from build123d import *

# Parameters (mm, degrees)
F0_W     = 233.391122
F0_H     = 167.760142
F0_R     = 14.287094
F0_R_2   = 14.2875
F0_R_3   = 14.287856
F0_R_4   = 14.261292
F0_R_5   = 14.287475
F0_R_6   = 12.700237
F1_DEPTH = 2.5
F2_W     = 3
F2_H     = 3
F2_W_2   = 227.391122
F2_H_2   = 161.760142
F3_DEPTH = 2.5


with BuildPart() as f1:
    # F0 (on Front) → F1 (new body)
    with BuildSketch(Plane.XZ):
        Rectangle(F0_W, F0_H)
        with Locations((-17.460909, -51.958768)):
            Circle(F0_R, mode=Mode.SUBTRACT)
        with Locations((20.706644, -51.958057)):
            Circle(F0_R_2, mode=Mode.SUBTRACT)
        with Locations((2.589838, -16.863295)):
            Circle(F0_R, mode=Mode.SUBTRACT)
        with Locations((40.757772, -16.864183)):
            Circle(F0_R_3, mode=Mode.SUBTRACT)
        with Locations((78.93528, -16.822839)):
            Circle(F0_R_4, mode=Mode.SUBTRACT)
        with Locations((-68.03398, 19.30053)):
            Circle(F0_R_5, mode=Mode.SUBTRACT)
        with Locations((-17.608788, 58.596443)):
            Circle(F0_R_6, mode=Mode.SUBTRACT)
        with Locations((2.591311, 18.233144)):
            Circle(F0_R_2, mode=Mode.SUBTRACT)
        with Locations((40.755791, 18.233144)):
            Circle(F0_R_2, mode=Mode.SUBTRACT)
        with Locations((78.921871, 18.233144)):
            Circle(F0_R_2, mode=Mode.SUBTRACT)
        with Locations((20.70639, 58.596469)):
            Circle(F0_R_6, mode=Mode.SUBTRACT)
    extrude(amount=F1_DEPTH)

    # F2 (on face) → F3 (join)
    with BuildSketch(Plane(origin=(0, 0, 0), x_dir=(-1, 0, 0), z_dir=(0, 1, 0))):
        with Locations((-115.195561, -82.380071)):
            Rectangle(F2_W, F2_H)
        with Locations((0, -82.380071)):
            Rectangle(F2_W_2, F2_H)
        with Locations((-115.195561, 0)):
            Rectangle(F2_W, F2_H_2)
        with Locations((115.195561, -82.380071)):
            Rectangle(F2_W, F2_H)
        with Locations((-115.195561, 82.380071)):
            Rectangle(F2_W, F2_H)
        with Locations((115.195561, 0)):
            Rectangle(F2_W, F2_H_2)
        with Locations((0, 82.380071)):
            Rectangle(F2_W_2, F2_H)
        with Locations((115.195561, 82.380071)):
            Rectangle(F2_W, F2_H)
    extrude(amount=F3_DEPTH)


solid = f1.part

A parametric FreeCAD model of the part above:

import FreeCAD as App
import Part
import Sketcher

V = App.Vector


def add_polygon(sketch, points):
    """Adds a closed chain of lines whose ends are joined by coincident constraints."""
    first, n = sketch.GeometryCount, len(points)
    for a, b in zip(points, points[1:] + points[:1]):
        sketch.addGeometry(Part.LineSegment(App.Vector(*a, 0), App.Vector(*b, 0)), False)
    for i in range(n):
        sketch.addConstraint(Sketcher.Constraint("Coincident", first + i, 2, first + (i + 1) % n, 1))

doc = App.newDocument("Part")
body = doc.addObject("PartDesign::Body", "Body")

sketch1 = body.newObject("Sketcher::SketchObject", "Sketch")
sketch1.AttachmentSupport = (doc.getObject("XZ_Plane"), [""])
sketch1.MapMode = "FlatFace"
add_polygon(sketch1, [(-117, 84), (-117, -84), (117, -84), (117, 84)])
sketch1.addGeometry(Part.Circle(V(-17, -52, 0), V(0, 0, 1), 14), False)
sketch1.addGeometry(Part.Circle(V(3, -17, 0), V(0, 0, 1), 14), False)
sketch1.addGeometry(Part.Circle(V(21, -52, 0), V(0, 0, 1), 14), False)
sketch1.addGeometry(Part.Circle(V(41, -17, 0), V(0, 0, 1), 14), False)
sketch1.addGeometry(Part.Circle(V(79, -17, 0), V(0, 0, 1), 14), False)
sketch1.addGeometry(Part.Circle(V(-68, 19, 0), V(0, 0, 1), 14), False)
sketch1.addGeometry(Part.Circle(V(3, 18, 0), V(0, 0, 1), 14), False)
sketch1.addGeometry(Part.Circle(V(-18, 59, 0), V(0, 0, 1), 13), False)
sketch1.addGeometry(Part.Circle(V(41, 18, 0), V(0, 0, 1), 14), False)
sketch1.addGeometry(Part.Circle(V(79, 18, 0), V(0, 0, 1), 14), False)
sketch1.addGeometry(Part.Circle(V(21, 59, 0), V(0, 0, 1), 13), False)
sketch1.addConstraint([
    Sketcher.Constraint("Vertical", 0),
    Sketcher.Constraint("Horizontal", 1),
    Sketcher.Constraint("Vertical", 2),
    Sketcher.Constraint("Horizontal", 3),
    Sketcher.Constraint("Equal", 4, 5),
    Sketcher.Constraint("Equal", 6, 10),
    Sketcher.Constraint("Equal", 10, 12),
    Sketcher.Constraint("Equal", 12, 13),
    Sketcher.Constraint("Equal", 11, 14),
    Sketcher.Constraint("Symmetric", 0, 2, 2, 2, -1, 1),
    Sketcher.Constraint("Horizontal", 10, 3, 12, 3),
    Sketcher.Constraint("Horizontal", 12, 3, 13, 3),
    Sketcher.Constraint("Diameter", 6, 28.575),
    Sketcher.Constraint("Diameter", 7, 28.575712),
    Sketcher.Constraint("Diameter", 9, 28.57495),
    Sketcher.Constraint("Diameter", 4, 28.574188),
    Sketcher.Constraint("Diameter", 8, 28.522584),
    Sketcher.Constraint("Diameter", 11, 25.400474),
    Sketcher.Constraint("DistanceX", 1, 1, 1, 2, 233.391122),
    Sketcher.Constraint("DistanceY", 0, 2, 0, 1, 167.760142),
    Sketcher.Constraint("DistanceY", 4, 3, 9, 3, 71.259298),
    Sketcher.Constraint("DistanceY", 6, 3, 10, 3, 70.191201),
    Sketcher.Constraint("DistanceX", 11, 3, 10, 3, 20.200099),
    Sketcher.Constraint("DistanceY", 10, 3, 11, 3, 40.363299),
    Sketcher.Constraint("DistanceX", 7, 3, 13, 3, 38.164099),
    Sketcher.Constraint("DistanceX", 14, 3, 12, 3, 20.049401),
    Sketcher.Constraint("DistanceY", 0, 2, 9, 3, 103.180601),
    Sketcher.Constraint("DistanceX", 0, 2, 5, 3, 119.285399),
    Sketcher.Constraint("DistanceX", 4, 3, -1, 1, 17.460909),
    Sketcher.Constraint("DistanceX", -1, 1, 8, 3, 78.93528),
    Sketcher.Constraint("DistanceY", 8, 3, -1, 1, 16.822839),
    Sketcher.Constraint("DistanceX", 9, 3, -1, 1, 68.03398),
    Sketcher.Constraint("DistanceX", -1, 1, 10, 3, 2.591311),
    Sketcher.Constraint("DistanceX", -1, 1, 12, 3, 40.755791),
    Sketcher.Constraint("DistanceX", -1, 1, 13, 3, 78.921871),
    Sketcher.Constraint("DistanceY", -1, 1, 14, 3, 58.596469),
    Sketcher.Constraint("DistanceY", 4, 3, 6, 3, 0.000711),
    Sketcher.Constraint("DistanceY", 6, 3, 5, 3, 35.094762),
    Sketcher.Constraint("DistanceX", 6, 3, 7, 3, 20.051128),
    Sketcher.Constraint("DistanceY", 1, 2, 7, 3, 67.015888),
])
pad1 = body.newObject("PartDesign::Pad", "Pad")
pad1.Profile = sketch1
pad1.Length = 2.5

sketch2 = body.newObject("Sketcher::SketchObject", "Sketch001")
sketch2.AttachmentSupport = (doc.getObject("XZ_Plane"), [""])
sketch2.MapMode = "FlatFace"
add_polygon(sketch2, [(-117, -84), (-117, 84), (117, 84), (117, -84)])
add_polygon(sketch2, [(-114, 81), (-114, -81), (114, -81), (114, 81)])
sketch2.addConstraint([
    Sketcher.Constraint("Vertical", 0),
    Sketcher.Constraint("Horizontal", 1),
    Sketcher.Constraint("Vertical", 2),
    Sketcher.Constraint("Horizontal", 3),
    Sketcher.Constraint("Vertical", 4),
    Sketcher.Constraint("Horizontal", 5),
    Sketcher.Constraint("Vertical", 6),
    Sketcher.Constraint("Horizontal", 7),
    Sketcher.Constraint("Symmetric", 0, 2, 2, 2, -1, 1),
    Sketcher.Constraint("Symmetric", 4, 2, 6, 2, -1, 1),
    Sketcher.Constraint("DistanceX", 3, 2, 4, 2, 3.0),
    Sketcher.Constraint("DistanceY", 3, 2, 4, 2, 3.0),
    Sketcher.Constraint("DistanceX", 1, 1, 1, 2, 233.391122),
    Sketcher.Constraint("DistanceY", 0, 1, 0, 2, 167.760142),
])
pad2 = body.newObject("PartDesign::Pad", "Pad001")
pad2.Profile = sketch2
pad2.Length = 2.5
pad2.Reversed = True

doc.recompute()
